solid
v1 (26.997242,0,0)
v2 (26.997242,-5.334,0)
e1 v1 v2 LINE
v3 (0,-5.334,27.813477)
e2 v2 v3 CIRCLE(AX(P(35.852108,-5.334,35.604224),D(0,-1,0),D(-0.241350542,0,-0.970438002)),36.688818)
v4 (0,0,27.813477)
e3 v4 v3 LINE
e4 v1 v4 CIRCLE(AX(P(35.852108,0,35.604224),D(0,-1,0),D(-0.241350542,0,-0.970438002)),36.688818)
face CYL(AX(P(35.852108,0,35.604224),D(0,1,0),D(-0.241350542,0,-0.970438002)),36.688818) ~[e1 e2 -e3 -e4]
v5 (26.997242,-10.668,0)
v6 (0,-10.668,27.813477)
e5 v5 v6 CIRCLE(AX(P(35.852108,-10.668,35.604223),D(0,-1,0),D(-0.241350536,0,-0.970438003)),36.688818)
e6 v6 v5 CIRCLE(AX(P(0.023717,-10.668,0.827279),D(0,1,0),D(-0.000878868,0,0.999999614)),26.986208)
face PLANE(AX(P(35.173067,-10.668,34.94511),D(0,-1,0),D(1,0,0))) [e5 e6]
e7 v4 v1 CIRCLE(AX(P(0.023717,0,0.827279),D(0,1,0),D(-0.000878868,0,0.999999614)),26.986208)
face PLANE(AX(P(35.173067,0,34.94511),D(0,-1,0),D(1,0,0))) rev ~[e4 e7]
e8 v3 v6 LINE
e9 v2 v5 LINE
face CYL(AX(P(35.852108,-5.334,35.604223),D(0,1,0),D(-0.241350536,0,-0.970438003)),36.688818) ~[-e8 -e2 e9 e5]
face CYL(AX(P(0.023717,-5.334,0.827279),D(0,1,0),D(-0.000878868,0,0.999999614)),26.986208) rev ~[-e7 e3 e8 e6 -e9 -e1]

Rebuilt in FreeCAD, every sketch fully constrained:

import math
import FreeCAD as App
import Part
import Sketcher
Q = App.Units.Quantity

doc = App.newDocument("Part")
body = doc.addObject("PartDesign::Body", "Body")

# Sketch on XZ plane
sketch1 = body.newObject("Sketcher::SketchObject", "Sketch")
sketch1.AttachmentSupport = (doc.getObject("XZ_Plane"), [""])
sketch1.MapMode = "FlatFace"
sketch1.addGeometry(Part.ArcOfCircle(Part.Circle(App.Vector(0, 1, 0), App.Vector(0, 0, 1), 27), math.radians(-2), math.radians(90)), False)
sketch1.addGeometry(Part.ArcOfCircle(Part.Circle(App.Vector(36, 36, 0), App.Vector(0, 0, 1), 37), math.radians(-104), math.radians(192)), False)
sketch1.addConstraint(Sketcher.Constraint("Coincident", 0, 1, 1, 1))
sketch1.addConstraint(Sketcher.Constraint("Coincident", 1, 2, 0, 2))
sketch1.addConstraint(Sketcher.Constraint("PointOnObject", 0, 1, -1))
sketch1.addConstraint(Sketcher.Constraint("PointOnObject", 1, 2, -2))
sketch1.addConstraint(Sketcher.Constraint("Radius", 0, 26.986208))
sketch1.addConstraint(Sketcher.Constraint("Radius", 1, 36.688818))
sketch1.addConstraint(Sketcher.Constraint("DistanceY", -1, 1, 0, 3, 0.827279))
sketch1.addConstraint(Sketcher.Constraint("DistanceX", -1, 1, 1, 3, 35.852108))
pad1 = body.newObject("PartDesign::Pad", "Pad")
pad1.Profile = sketch1
pad1.Length = Q("0.21 in")

# Sketch on XZ plane
sketch2 = body.newObject("Sketcher::SketchObject", "Sketch001")
sketch2.AttachmentSupport = (doc.getObject("XZ_Plane"), [""])
sketch2.MapMode = "FlatFace"
sketch2.AttachmentOffset = App.Placement(App.Vector(0, 0, 0.21 * 25.4), App.Rotation())
sketch2.addGeometry(Part.ArcOfCircle(Part.Circle(App.Vector(0, 1, 0), App.Vector(0, 0, 1), 27), math.radians(-2), math.radians(90)), False)
sketch2.addGeometry(Part.ArcOfCircle(Part.Circle(App.Vector(36, 36, 0), App.Vector(0, 0, 1), 37), math.radians(-104), math.radians(192)), False)
sketch2.addConstraint(Sketcher.Constraint("Coincident", 0, 1, 1, 1))
sketch2.addConstraint(Sketcher.Constraint("Coincident", 1, 2, 0, 2))
sketch2.addConstraint(Sketcher.Constraint("PointOnObject", 0, 1, -1))
sketch2.addConstraint(Sketcher.Constraint("PointOnObject", 1, 2, -2))
sketch2.addConstraint(Sketcher.Constraint("Radius", 0, 26.986208))
sketch2.addConstraint(Sketcher.Constraint("Radius", 1, 36.688818))
sketch2.addConstraint(Sketcher.Constraint("DistanceY", -1, 1, 0, 3, 0.827279))
sketch2.addConstraint(Sketcher.Constraint("DistanceX", 0, 3, 1, 3, 35.828391))
pad2 = body.newObject("PartDesign::Pad", "Pad001")
pad2.Profile = sketch2
pad2.Length = Q("0.21 in")

doc.recompute()
